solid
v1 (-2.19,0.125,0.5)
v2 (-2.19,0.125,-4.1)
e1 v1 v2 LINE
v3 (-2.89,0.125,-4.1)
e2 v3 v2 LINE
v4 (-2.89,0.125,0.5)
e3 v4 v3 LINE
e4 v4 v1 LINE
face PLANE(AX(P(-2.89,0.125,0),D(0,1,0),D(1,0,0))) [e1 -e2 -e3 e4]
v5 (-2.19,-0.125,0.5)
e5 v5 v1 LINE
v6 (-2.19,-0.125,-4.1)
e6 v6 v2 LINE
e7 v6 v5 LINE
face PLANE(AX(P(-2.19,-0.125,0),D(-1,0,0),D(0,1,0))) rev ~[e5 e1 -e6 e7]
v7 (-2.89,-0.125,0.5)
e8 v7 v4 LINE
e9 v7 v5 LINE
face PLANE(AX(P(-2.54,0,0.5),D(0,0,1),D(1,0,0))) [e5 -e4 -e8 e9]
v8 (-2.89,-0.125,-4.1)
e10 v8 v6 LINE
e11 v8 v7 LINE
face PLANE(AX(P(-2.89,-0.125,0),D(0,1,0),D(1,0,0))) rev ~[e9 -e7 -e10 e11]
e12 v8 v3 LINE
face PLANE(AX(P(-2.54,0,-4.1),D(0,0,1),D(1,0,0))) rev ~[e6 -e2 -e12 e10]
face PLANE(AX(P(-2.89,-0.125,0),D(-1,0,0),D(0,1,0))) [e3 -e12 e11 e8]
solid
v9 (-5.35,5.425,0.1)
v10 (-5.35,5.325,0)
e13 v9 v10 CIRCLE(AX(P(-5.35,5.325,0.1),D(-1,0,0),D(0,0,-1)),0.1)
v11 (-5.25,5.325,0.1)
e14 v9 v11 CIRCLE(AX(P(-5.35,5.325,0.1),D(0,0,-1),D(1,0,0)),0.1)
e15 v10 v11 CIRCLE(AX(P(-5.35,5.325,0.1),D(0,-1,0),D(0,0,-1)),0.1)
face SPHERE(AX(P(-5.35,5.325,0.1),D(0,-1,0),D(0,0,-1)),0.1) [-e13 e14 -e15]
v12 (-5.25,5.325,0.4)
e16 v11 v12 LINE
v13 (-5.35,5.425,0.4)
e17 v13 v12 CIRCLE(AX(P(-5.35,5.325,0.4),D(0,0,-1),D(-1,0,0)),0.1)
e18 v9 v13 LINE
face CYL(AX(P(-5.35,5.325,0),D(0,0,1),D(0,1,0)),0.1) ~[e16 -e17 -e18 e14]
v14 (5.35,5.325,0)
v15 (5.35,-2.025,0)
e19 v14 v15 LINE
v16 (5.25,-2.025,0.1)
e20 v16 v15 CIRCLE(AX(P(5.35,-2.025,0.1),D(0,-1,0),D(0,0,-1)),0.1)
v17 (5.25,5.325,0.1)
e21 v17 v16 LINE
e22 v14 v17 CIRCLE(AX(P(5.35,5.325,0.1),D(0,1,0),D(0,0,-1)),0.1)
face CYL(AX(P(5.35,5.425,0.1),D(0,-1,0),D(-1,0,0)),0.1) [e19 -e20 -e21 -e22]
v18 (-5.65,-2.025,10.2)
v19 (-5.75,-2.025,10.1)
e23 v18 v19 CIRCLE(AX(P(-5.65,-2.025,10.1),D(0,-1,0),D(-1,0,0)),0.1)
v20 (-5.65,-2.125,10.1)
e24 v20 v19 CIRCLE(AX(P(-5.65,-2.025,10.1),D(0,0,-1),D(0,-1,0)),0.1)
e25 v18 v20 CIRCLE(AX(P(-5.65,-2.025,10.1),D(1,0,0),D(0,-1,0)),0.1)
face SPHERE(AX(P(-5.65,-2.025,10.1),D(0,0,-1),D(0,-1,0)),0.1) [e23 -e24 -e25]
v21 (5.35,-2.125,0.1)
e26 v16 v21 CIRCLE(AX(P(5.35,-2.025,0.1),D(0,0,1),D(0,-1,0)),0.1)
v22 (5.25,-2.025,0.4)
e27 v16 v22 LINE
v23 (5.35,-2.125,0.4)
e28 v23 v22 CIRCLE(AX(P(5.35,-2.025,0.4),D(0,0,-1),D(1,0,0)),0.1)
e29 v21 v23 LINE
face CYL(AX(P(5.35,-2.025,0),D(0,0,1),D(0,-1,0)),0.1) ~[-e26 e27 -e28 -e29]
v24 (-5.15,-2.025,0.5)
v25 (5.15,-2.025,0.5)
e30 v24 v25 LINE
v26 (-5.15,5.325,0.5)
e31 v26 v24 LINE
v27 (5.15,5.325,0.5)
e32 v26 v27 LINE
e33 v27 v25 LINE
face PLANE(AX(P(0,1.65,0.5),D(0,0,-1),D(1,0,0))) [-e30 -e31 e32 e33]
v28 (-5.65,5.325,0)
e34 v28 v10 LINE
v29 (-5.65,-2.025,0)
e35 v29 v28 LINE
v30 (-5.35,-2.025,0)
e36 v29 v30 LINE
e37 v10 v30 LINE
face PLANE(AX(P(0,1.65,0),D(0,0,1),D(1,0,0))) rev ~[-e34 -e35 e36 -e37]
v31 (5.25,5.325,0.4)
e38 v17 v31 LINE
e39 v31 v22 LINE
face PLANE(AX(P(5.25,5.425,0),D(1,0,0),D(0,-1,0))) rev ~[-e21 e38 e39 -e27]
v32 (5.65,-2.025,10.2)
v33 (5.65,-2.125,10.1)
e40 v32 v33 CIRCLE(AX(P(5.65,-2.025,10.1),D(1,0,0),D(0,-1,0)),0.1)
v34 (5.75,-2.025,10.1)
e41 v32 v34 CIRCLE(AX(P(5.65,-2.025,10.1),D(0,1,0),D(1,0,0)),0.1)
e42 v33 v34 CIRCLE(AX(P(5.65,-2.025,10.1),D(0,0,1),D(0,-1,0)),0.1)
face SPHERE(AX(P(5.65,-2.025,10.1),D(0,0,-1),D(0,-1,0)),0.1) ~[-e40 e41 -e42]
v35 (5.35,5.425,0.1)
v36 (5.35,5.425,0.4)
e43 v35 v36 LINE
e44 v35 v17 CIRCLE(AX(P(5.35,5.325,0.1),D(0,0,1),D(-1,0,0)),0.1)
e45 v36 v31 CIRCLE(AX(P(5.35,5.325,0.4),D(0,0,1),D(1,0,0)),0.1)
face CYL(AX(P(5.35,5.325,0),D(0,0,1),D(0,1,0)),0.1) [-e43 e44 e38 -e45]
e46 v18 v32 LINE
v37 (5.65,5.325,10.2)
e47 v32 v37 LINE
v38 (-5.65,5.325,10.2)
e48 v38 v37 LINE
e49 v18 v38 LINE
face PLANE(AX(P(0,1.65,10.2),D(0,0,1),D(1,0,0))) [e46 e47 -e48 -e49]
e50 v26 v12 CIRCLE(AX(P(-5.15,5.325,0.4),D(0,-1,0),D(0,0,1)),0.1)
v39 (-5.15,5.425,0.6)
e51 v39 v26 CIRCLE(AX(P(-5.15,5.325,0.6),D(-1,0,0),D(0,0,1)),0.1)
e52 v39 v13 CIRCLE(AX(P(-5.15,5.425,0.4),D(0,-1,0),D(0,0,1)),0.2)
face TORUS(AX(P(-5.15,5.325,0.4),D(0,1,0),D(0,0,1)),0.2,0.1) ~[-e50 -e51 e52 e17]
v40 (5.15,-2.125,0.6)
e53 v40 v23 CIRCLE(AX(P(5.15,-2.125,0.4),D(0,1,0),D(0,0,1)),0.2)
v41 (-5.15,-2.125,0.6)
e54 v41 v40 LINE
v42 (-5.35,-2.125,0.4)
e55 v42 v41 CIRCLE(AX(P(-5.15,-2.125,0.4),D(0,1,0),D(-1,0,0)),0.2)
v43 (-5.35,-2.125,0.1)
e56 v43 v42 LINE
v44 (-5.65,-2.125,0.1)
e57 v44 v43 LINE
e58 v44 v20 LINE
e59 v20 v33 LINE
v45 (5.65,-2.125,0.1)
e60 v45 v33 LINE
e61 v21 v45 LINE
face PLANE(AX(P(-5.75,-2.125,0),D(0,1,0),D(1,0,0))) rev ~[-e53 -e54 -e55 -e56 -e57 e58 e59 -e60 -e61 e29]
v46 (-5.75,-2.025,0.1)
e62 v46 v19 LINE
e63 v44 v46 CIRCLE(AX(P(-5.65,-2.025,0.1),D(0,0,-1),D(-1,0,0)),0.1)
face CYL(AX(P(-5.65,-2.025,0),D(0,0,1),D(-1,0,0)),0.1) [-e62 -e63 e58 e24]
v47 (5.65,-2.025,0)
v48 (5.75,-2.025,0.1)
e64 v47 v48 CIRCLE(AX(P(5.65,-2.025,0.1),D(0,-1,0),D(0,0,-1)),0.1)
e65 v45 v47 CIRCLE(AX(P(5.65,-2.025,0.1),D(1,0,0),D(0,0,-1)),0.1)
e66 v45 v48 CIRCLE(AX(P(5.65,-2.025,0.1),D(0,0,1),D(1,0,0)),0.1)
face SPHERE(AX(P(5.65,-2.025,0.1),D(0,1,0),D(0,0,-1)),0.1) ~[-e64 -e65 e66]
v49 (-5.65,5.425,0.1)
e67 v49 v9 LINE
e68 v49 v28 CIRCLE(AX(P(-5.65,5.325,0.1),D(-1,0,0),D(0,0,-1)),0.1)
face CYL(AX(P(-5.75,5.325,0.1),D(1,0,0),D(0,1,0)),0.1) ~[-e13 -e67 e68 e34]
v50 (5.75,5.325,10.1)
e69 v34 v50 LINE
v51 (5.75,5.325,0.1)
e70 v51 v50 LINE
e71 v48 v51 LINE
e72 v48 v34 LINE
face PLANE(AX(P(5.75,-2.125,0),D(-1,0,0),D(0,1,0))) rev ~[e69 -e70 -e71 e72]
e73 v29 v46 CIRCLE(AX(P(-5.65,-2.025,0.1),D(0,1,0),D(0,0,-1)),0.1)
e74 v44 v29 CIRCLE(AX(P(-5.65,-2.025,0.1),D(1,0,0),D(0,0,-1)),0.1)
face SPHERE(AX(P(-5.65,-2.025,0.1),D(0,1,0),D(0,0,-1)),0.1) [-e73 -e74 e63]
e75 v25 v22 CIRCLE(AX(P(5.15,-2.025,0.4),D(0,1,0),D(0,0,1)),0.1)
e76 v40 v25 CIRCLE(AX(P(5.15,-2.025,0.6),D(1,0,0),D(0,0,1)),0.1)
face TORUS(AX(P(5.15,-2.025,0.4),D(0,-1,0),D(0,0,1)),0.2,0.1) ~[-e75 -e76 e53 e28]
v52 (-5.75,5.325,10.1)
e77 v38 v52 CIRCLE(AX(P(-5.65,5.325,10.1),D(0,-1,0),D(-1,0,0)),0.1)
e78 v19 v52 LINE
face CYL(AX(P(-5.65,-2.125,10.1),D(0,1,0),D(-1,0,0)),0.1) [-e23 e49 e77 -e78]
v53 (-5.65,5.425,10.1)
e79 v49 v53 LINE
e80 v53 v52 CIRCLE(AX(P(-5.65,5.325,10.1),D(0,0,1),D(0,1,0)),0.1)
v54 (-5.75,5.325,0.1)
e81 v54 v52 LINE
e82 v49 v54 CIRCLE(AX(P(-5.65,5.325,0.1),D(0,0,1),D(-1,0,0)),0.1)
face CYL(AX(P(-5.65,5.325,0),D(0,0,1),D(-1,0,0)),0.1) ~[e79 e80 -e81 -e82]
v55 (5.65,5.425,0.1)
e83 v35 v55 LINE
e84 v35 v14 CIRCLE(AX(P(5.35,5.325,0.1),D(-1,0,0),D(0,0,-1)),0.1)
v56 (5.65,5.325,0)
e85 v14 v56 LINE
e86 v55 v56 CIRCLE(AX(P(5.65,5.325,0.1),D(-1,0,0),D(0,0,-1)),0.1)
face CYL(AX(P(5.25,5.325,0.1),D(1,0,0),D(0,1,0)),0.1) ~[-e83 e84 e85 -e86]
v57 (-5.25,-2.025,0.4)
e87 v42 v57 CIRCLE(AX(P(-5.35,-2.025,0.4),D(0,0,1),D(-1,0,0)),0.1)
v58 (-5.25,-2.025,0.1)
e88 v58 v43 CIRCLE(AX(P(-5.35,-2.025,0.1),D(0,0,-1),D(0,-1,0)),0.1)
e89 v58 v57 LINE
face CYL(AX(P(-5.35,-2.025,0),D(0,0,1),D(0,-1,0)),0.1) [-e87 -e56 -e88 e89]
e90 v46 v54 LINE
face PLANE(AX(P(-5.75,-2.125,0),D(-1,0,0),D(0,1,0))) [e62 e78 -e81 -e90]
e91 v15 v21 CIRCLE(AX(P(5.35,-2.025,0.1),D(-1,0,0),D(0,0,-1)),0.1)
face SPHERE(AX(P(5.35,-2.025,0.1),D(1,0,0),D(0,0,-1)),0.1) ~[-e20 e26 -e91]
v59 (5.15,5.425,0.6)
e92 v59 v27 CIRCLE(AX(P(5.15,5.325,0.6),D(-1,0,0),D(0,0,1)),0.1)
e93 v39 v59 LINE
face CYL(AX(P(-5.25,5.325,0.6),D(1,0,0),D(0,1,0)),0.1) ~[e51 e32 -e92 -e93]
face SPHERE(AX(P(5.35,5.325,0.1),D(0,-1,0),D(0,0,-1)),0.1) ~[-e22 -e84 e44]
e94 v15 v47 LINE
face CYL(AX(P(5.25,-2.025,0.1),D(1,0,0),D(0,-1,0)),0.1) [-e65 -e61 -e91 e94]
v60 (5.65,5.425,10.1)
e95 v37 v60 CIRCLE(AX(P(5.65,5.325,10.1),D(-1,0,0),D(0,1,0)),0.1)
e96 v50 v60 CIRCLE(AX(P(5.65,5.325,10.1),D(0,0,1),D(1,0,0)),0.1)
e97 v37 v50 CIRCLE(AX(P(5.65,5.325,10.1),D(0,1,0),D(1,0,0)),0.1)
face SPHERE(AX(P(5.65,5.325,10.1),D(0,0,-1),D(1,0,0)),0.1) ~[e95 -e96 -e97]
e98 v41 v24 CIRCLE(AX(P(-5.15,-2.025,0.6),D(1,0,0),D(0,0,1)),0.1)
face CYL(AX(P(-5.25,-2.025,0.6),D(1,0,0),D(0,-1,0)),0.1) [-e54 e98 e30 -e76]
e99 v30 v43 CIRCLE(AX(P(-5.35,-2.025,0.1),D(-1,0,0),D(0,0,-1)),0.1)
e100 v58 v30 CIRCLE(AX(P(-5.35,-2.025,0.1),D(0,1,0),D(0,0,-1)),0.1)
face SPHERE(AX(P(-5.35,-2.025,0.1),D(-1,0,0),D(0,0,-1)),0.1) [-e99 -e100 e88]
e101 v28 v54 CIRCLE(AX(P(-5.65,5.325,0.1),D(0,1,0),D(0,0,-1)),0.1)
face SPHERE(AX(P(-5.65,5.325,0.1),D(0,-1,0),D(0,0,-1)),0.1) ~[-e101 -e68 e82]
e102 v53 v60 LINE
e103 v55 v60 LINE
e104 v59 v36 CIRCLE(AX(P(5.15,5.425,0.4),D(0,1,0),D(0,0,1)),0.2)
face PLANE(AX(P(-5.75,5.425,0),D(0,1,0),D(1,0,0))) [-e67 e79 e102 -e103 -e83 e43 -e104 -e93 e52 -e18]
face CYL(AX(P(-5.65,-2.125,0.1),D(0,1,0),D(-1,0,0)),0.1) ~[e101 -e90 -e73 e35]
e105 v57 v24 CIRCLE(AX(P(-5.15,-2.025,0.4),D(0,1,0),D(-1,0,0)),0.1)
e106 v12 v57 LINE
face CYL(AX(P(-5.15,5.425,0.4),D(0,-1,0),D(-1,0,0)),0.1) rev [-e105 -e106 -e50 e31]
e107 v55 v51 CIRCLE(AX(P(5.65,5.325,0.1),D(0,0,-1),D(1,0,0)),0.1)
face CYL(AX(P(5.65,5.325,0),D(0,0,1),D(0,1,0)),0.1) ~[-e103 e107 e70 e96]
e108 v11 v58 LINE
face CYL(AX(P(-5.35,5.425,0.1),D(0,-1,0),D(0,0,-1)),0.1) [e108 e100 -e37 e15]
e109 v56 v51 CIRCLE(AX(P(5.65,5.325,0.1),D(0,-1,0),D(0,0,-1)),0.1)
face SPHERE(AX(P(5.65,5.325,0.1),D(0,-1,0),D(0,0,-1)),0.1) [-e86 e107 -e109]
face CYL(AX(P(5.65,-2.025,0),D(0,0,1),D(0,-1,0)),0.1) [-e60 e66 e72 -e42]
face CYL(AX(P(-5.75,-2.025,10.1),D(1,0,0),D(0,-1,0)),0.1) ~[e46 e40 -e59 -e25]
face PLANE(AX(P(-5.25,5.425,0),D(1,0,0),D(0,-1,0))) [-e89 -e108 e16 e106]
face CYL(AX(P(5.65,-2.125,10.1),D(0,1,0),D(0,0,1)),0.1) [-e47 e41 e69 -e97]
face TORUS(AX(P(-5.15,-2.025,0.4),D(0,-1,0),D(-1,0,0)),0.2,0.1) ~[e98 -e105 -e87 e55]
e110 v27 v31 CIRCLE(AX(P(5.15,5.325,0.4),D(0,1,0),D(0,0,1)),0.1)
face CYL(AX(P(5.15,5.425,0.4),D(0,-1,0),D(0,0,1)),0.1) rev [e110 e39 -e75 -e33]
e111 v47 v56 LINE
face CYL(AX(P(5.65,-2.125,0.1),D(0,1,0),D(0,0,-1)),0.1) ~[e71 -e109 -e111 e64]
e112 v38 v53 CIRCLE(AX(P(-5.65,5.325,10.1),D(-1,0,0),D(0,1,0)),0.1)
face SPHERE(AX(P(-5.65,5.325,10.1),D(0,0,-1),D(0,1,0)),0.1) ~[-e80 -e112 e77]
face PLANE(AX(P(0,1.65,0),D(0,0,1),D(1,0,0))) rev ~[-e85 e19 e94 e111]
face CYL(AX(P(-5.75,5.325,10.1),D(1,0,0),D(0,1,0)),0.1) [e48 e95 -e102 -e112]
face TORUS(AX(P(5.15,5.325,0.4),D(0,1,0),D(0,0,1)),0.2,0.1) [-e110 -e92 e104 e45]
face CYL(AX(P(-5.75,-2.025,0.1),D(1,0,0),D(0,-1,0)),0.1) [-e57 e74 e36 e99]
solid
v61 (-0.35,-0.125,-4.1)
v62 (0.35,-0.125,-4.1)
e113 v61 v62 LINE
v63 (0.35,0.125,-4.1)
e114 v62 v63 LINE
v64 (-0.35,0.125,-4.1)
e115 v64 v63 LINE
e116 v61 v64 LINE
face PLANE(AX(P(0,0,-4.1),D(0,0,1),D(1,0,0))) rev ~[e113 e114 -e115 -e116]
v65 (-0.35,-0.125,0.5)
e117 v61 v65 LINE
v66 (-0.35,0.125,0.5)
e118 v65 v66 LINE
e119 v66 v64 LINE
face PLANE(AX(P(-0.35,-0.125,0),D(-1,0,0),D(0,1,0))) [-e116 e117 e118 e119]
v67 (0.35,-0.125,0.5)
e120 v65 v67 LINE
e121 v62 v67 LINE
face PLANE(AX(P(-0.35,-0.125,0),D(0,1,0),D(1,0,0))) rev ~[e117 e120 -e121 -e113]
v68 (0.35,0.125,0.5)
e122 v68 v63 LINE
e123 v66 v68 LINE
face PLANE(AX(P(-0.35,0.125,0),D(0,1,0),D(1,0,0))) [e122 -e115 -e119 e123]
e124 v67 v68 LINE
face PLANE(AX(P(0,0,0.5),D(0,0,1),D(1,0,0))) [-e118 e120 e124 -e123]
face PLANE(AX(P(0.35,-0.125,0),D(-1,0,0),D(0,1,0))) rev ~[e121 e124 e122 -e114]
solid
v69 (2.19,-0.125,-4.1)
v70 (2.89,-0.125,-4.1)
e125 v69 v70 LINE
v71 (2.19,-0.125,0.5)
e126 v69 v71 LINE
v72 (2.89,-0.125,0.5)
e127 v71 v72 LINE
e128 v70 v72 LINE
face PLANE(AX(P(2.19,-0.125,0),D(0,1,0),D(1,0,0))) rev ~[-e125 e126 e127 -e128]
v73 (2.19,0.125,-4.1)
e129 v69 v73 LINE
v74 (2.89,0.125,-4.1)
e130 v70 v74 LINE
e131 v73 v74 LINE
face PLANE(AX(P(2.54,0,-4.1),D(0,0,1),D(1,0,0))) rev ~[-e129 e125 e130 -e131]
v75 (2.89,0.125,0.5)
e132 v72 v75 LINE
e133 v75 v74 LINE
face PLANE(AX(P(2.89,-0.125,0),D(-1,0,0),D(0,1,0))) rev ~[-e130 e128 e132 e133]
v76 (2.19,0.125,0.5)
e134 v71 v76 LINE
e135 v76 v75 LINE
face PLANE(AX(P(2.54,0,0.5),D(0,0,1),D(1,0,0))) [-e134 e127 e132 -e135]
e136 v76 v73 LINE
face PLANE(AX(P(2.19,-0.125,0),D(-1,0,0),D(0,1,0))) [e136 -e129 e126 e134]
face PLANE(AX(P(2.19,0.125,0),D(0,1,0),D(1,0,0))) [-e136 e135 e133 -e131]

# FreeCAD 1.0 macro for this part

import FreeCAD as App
import Part
import Sketcher


def add_polygon(sketch, points):
    """Adds a closed chain of lines whose ends are joined by coincident constraints."""
    first, n = sketch.GeometryCount, len(points)
    for a, b in zip(points, points[1:] + points[:1]):
        sketch.addGeometry(Part.LineSegment(App.Vector(*a, 0), App.Vector(*b, 0)), False)
    for i in range(n):
        sketch.addConstraint(Sketcher.Constraint("Coincident", first + i, 2, first + (i + 1) % n, 1))

doc = App.newDocument("Part")
body = doc.addObject("PartDesign::Body", "Body")

# Sketch on XY plane
sketch1 = body.newObject("Sketcher::SketchObject", "Sketch")
sketch1.AttachmentSupport = (doc.getObject("XY_Plane"), [""])
sketch1.MapMode = "FlatFace"
add_polygon(sketch1, [(-6, 5), (-6, -2), (6, -2), (6, 5)])  # lines 0-3
sketch1.addConstraint([
    Sketcher.Constraint("Vertical", 0),
    Sketcher.Constraint("Horizontal", 1),
    Sketcher.Constraint("Vertical", 2),
    Sketcher.Constraint("Horizontal", 3),
    Sketcher.Constraint("DistanceX", 1, 1, 1, 2, 11.5),
    Sketcher.Constraint("DistanceY", 0, 2, 0, 1, 7.55),
    Sketcher.Constraint("DistanceX", 0, 2, -1, 1, 5.75),
    Sketcher.Constraint("DistanceY", 0, 2, -1, 1, 2.125),
])
pad1 = body.newObject("PartDesign::Pad", "Pad")
pad1.Profile = sketch1
pad1.Length = 10.2

# Sketch on XY plane
sketch2 = body.newObject("Sketcher::SketchObject", "Sketch001")
sketch2.AttachmentSupport = (doc.getObject("XY_Plane"), [""])
sketch2.MapMode = "FlatFace"
add_polygon(sketch2, [(-5, -2), (-5, 5), (5, 5), (5, -2)])  # lines 0-3
sketch2.addConstraint([
    Sketcher.Constraint("Vertical", 0),
    Sketcher.Constraint("Horizontal", 1),
    Sketcher.Constraint("Vertical", 2),
    Sketcher.Constraint("Horizontal", 3),
    Sketcher.Constraint("DistanceX", 1, 1, 1, 2, 10.5),
    Sketcher.Constraint("DistanceY", 0, 1, 0, 2, 7.55),
    Sketcher.Constraint("DistanceX", 0, 2, -1, 1, 5.25),
    Sketcher.Constraint("DistanceY", -1, 1, 0, 2, 5.425),
])
pocket1 = body.newObject("PartDesign::Pocket", "Pocket")
pocket1.Profile = sketch2
pocket1.Length = 0.5
pocket1.Reversed = True
doc.recompute()

fillet = body.newObject("PartDesign::Fillet", "Fillet")
fillet.Base = (pocket1, ["Edge1"])
fillet.UseAllEdges = True
fillet.Radius = 0.1
body2 = doc.addObject("PartDesign::Body", "Body001")

# Sketch on XY plane
sketch3 = body2.newObject("Sketcher::SketchObject", "Sketch002")
sketch3.AttachmentSupport = (doc.getObject("XY_Plane001"), [""])
sketch3.MapMode = "FlatFace"
add_polygon(sketch3, [(2.19, 0.12), (2.19, -0.12), (2.89, -0.12), (2.89, 0.12)])  # lines 0-3
sketch3.addConstraint([
    Sketcher.Constraint("Vertical", 0),
    Sketcher.Constraint("Horizontal", 1),
    Sketcher.Constraint("Vertical", 2),
    Sketcher.Constraint("Horizontal", 3),
    Sketcher.Constraint("DistanceX", 1, 1, 1, 2, 0.7),
    Sketcher.Constraint("DistanceY", 0, 2, 0, 1, 0.25),
    Sketcher.Constraint("DistanceX", -1, 1, 0, 2, 2.19),
    Sketcher.Constraint("DistanceY", 0, 2, -1, 1, 0.125),
])
pad2 = body2.newObject("PartDesign::Pad", "Pad001")
pad2.Profile = sketch3
pad2.Type = "TwoLengths"
pad2.Length = 4.1
pad2.Length2 = 0.5
pad2.Reversed = True
body3 = doc.addObject("PartDesign::Body", "Body002")

# Sketch on XY plane
sketch4 = body3.newObject("Sketcher::SketchObject", "Sketch003")
sketch4.AttachmentSupport = (doc.getObject("XY_Plane002"), [""])
sketch4.MapMode = "FlatFace"
add_polygon(sketch4, [(-0.35, 0.12), (-0.35, -0.12), (0.35, -0.12), (0.35, 0.12)])  # lines 0-3
sketch4.addConstraint([
    Sketcher.Constraint("Vertical", 0),
    Sketcher.Constraint("Horizontal", 1),
    Sketcher.Constraint("Vertical", 2),
    Sketcher.Constraint("Horizontal", 3),
    Sketcher.Constraint("Symmetric", 0, 2, 2, 2, -1, 1),
    Sketcher.Constraint("DistanceX", 1, 1, 1, 2, 0.7),
    Sketcher.Constraint("DistanceY", 0, 2, 0, 1, 0.25),
])
pad3 = body3.newObject("PartDesign::Pad", "Pad002")
pad3.Profile = sketch4
pad3.Type = "TwoLengths"
pad3.Length = 4.1
pad3.Length2 = 0.5
pad3.Reversed = True
body4 = doc.addObject("PartDesign::Body", "Body003")

# Sketch on XY plane
sketch5 = body4.newObject("Sketcher::SketchObject", "Sketch004")
sketch5.AttachmentSupport = (doc.getObject("XY_Plane003"), [""])
sketch5.MapMode = "FlatFace"
add_polygon(sketch5, [(-2.89, 0.12), (-2.89, -0.12), (-2.19, -0.12), (-2.19, 0.12)])  # lines 0-3
sketch5.addConstraint([
    Sketcher.Constraint("Vertical", 0),
    Sketcher.Constraint("Horizontal", 1),
    Sketcher.Constraint("Vertical", 2),
    Sketcher.Constraint("Horizontal", 3),
    Sketcher.Constraint("DistanceX", 1, 1, 1, 2, 0.7),
    Sketcher.Constraint("DistanceY", 0, 2, 0, 1, 0.25),
    Sketcher.Constraint("DistanceX", 0, 2, -1, 1, 2.89),
    Sketcher.Constraint("DistanceY", 0, 2, -1, 1, 0.125),
])
pad4 = body4.newObject("PartDesign::Pad", "Pad003")
pad4.Profile = sketch5
pad4.Type = "TwoLengths"
pad4.Length = 4.1
pad4.Length2 = 0.5
pad4.Reversed = True

doc.recompute()
